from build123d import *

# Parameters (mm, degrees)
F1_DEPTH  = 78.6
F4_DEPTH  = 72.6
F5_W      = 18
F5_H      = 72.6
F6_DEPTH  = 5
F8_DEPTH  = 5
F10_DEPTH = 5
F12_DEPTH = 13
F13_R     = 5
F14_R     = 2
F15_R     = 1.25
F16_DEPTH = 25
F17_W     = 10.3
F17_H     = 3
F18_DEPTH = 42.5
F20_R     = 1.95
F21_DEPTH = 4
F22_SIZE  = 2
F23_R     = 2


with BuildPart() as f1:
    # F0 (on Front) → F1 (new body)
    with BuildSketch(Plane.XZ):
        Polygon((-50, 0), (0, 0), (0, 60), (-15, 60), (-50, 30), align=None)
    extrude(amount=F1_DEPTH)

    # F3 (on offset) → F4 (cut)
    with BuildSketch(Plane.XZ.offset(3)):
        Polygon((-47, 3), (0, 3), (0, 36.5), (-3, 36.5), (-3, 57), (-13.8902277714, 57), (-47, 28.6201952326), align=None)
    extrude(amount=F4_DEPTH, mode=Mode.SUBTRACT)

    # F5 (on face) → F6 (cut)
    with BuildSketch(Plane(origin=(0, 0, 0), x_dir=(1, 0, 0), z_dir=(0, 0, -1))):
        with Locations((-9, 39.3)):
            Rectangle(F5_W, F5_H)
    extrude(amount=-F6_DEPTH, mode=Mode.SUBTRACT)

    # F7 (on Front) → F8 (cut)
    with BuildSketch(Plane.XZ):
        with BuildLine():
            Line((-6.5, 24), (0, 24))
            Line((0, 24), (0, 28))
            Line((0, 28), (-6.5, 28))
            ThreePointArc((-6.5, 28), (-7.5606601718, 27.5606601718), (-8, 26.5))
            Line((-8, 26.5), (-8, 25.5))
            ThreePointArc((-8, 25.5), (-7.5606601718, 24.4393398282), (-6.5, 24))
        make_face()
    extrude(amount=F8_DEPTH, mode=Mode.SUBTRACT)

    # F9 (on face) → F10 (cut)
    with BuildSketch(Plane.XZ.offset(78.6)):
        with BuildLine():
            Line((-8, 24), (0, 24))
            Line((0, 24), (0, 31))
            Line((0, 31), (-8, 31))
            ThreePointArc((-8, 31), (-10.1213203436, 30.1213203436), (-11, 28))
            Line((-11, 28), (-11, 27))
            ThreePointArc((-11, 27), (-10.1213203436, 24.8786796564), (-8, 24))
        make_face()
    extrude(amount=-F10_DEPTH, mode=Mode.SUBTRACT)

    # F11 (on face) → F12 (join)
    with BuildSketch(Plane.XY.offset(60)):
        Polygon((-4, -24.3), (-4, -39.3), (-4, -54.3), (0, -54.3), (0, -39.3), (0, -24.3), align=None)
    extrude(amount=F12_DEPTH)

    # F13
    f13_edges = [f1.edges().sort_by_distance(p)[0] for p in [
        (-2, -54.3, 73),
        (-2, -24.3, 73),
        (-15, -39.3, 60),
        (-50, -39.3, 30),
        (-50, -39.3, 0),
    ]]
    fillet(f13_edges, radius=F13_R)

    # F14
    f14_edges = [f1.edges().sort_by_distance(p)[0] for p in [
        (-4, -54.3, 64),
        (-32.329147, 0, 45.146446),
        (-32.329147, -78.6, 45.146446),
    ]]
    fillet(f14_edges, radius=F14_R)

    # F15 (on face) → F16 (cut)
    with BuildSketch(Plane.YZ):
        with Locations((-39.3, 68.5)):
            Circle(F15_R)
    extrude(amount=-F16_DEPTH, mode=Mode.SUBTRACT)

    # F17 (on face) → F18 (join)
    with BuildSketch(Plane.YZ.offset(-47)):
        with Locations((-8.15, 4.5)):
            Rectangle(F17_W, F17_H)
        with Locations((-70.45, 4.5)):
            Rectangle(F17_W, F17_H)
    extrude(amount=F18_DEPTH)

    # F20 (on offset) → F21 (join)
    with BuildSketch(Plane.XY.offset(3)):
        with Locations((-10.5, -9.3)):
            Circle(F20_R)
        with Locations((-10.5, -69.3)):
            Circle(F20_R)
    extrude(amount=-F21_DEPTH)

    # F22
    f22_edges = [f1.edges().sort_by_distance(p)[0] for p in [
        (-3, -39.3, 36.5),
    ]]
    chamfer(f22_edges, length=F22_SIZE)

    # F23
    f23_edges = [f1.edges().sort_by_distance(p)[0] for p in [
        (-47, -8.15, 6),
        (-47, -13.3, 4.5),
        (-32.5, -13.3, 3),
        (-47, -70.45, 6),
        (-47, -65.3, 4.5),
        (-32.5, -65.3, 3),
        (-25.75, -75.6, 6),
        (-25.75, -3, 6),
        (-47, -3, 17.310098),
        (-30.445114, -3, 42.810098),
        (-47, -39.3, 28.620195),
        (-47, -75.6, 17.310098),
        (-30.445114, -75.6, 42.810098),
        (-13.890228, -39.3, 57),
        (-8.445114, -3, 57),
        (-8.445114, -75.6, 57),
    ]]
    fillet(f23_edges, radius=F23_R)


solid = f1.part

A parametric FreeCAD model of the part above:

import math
import FreeCAD as App
import Part
import Sketcher
Q = App.Units.Quantity


def edges_at(feature, points):
    """Names of the edges that pass closest to the given points."""
    edges = feature.Shape.Edges
    near = lambda p: min(range(len(edges)), key=lambda i: edges[i].distToShape(Part.Vertex(*p))[0])
    return sorted({f"Edge{near(p) + 1}" for p in points})

doc = App.newDocument("Part")
body = doc.addObject("PartDesign::Body", "Body")

# Sketch on XZ plane
sketch1 = body.newObject("Sketcher::SketchObject", "Sketch")
sketch1.AttachmentSupport = (doc.getObject("XZ_Plane"), [""])
sketch1.MapMode = "FlatFace"
sketch1.addGeometry([
    Part.LineSegment(App.Vector(-50, 0, 0), App.Vector(0, 0, 0)),  # 0
    Part.LineSegment(App.Vector(0, 0, 0), App.Vector(0, 60, 0)),  # 1
    Part.LineSegment(App.Vector(0, 60, 0), App.Vector(-15, 60, 0)),  # 2
    Part.LineSegment(App.Vector(-15, 60, 0), App.Vector(-50, 30, 0)),  # 3
    Part.LineSegment(App.Vector(-50, 30, 0), App.Vector(-50, 0, 0)),  # 4
], False)
sketch1.addConstraint([
    Sketcher.Constraint("Coincident", 0, 2, 1, 1),
    Sketcher.Constraint("Coincident", 1, 2, 2, 1),
    Sketcher.Constraint("Coincident", 2, 2, 3, 1),
    Sketcher.Constraint("Coincident", 3, 2, 4, 1),
    Sketcher.Constraint("Coincident", 4, 2, 0, 1),
    Sketcher.Constraint("Horizontal", 0),
    Sketcher.Constraint("Vertical", 1),
    Sketcher.Constraint("Horizontal", 2),
    Sketcher.Constraint("Vertical", 4),
    Sketcher.Constraint("Coincident", 0, 2, -1, 1),
    Sketcher.Constraint("DistanceX", 0, 1, 0, 2, Q("50 mm")),
    Sketcher.Constraint("DistanceX", 2, 2, 2, 1, Q("15 mm")),
    Sketcher.Constraint("DistanceY", 1, 1, 1, 2, Q("60 mm")),
    Sketcher.Constraint("DistanceY", 4, 2, 4, 1, Q("30 mm")),
])
pad1 = body.newObject("PartDesign::Pad", "Pad")
pad1.Profile = sketch1
pad1.Length = 78.6

# Sketch on XZ plane
sketch2 = body.newObject("Sketcher::SketchObject", "Sketch001")
sketch2.AttachmentSupport = (doc.getObject("XZ_Plane"), [""])
sketch2.MapMode = "FlatFace"
sketch2.AttachmentOffset = App.Placement(App.Vector(0, 0, 3), App.Rotation())
sketch2.addGeometry([
    Part.LineSegment(App.Vector(-47, 3, 0), App.Vector(0, 3, 0)),  # 0
    Part.LineSegment(App.Vector(0, 3, 0), App.Vector(0, 36.5, 0)),  # 1
    Part.LineSegment(App.Vector(0, 36.5, 0), App.Vector(-3, 36.5, 0)),  # 2
    Part.LineSegment(App.Vector(-3, 36.5, 0), App.Vector(-3, 57, 0)),  # 3
    Part.LineSegment(App.Vector(-3, 57, 0), App.Vector(-13.890228, 57, 0)),  # 4
    Part.LineSegment(App.Vector(-13.890228, 57, 0), App.Vector(-47, 28.620195, 0)),  # 5
    Part.LineSegment(App.Vector(-47, 28.620195, 0), App.Vector(-47, 3, 0)),  # 6
], False)
sketch2.addConstraint([
    Sketcher.Constraint("Coincident", 0, 2, 1, 1),
    Sketcher.Constraint("Coincident", 1, 2, 2, 1),
    Sketcher.Constraint("Coincident", 2, 2, 3, 1),
    Sketcher.Constraint("Coincident", 3, 2, 4, 1),
    Sketcher.Constraint("Coincident", 4, 2, 5, 1),
    Sketcher.Constraint("Coincident", 5, 2, 6, 1),
    Sketcher.Constraint("Coincident", 6, 2, 0, 1),
    Sketcher.Constraint("Horizontal", 0),
    Sketcher.Constraint("Vertical", 1),
    Sketcher.Constraint("Horizontal", 2),
    Sketcher.Constraint("Vertical", 3),
    Sketcher.Constraint("Horizontal", 4),
    Sketcher.Constraint("Vertical", 6),
    Sketcher.Constraint("PointOnObject", 0, 2, -2),
    Sketcher.Constraint("DistanceX", 0, 1, 0, 2, Q("47 mm")),
    Sketcher.Constraint("DistanceX", 2, 2, 2, 1, Q("3 mm")),
    Sketcher.Constraint("DistanceY", 1, 1, 1, 2, Q("33.5 mm")),
    Sketcher.Constraint("DistanceY", 3, 1, 3, 2, Q("20.5 mm")),
    Sketcher.Constraint("DistanceY", -1, 1, 0, 2, Q("3 mm")),
    Sketcher.Constraint("DistanceX", 4, 2, 4, 1, Q("10.890228 mm")),
    Sketcher.Constraint("DistanceY", 6, 2, 6, 1, Q("25.620195 mm")),
])
pocket1 = body.newObject("PartDesign::Pocket", "Pocket")
pocket1.Profile = sketch2
pocket1.Length = 72.6
pocket1.Reversed = True

# Sketch on XY plane
sketch3 = body.newObject("Sketcher::SketchObject", "Sketch002")
sketch3.AttachmentSupport = (doc.getObject("XY_Plane"), [""])
sketch3.MapMode = "FlatFace"
sketch3.addGeometry([
    Part.LineSegment(App.Vector(-18, -75.6, 0), App.Vector(-18, -3, 0)),
    Part.LineSegment(App.Vector(-18, -3, 0), App.Vector(0, -3, 0)),
    Part.LineSegment(App.Vector(0, -3, 0), App.Vector(0, -75.6, 0)),
    Part.LineSegment(App.Vector(0, -75.6, 0), App.Vector(-18, -75.6, 0)),
], False)
sketch3.addConstraint([
    Sketcher.Constraint("Coincident", 0, 2, 1, 1),
    Sketcher.Constraint("Coincident", 1, 2, 2, 1),
    Sketcher.Constraint("Coincident", 2, 2, 3, 1),
    Sketcher.Constraint("Coincident", 3, 2, 0, 1),
    Sketcher.Constraint("Vertical", 0),
    Sketcher.Constraint("Horizontal", 1),
    Sketcher.Constraint("Vertical", 2),
    Sketcher.Constraint("Horizontal", 3),
    Sketcher.Constraint("PointOnObject", 1, 2, -2),
    Sketcher.Constraint("DistanceX", 1, 1, 1, 2, Q("18 mm")),
    Sketcher.Constraint("DistanceY", 0, 1, 0, 2, Q("72.6 mm")),
    Sketcher.Constraint("DistanceY", 0, 2, -1, 1, Q("3 mm")),
])
pocket2 = body.newObject("PartDesign::Pocket", "Pocket001")
pocket2.Profile = sketch3
pocket2.Length = 5
pocket2.Reversed = True

# Sketch on XZ plane
sketch4 = body.newObject("Sketcher::SketchObject", "Sketch003")
sketch4.AttachmentSupport = (doc.getObject("XZ_Plane"), [""])
sketch4.MapMode = "FlatFace"
sketch4.addGeometry([
    Part.LineSegment(App.Vector(-6.5, 24, 0), App.Vector(0, 24, 0)),  # 0
    Part.LineSegment(App.Vector(0, 24, 0), App.Vector(0, 28, 0)),  # 1
    Part.LineSegment(App.Vector(0, 28, 0), App.Vector(-6.5, 28, 0)),  # 2
    Part.ArcOfCircle(Part.Circle(App.Vector(-6.5, 26.5, 0), App.Vector(0, 0, 1), 1.5), math.radians(90), math.radians(180)),  # 3
    Part.LineSegment(App.Vector(-8, 26.5, 0), App.Vector(-8, 25.5, 0)),  # 4
    Part.ArcOfCircle(Part.Circle(App.Vector(-6.5, 25.5, 0), App.Vector(0, 0, 1), 1.5), math.radians(180), math.radians(270)),  # 5
], False)
sketch4.addConstraint([
    Sketcher.Constraint("Coincident", 0, 2, 1, 1),
    Sketcher.Constraint("Coincident", 1, 2, 2, 1),
    Sketcher.Constraint("Tangent", 2, 2, 3, 1),
    Sketcher.Constraint("Tangent", 3, 2, 4, 1),
    Sketcher.Constraint("Tangent", 4, 2, 5, 1),
    Sketcher.Constraint("Tangent", 5, 2, 0, 1),
    Sketcher.Constraint("Horizontal", 0),
    Sketcher.Constraint("Vertical", 1),
    Sketcher.Constraint("Horizontal", 2),
    Sketcher.Constraint("Vertical", 4),
    Sketcher.Constraint("Equal", 3, 5),
    Sketcher.Constraint("PointOnObject", 0, 2, -2),
    Sketcher.Constraint("Radius", 3, Q("1.5 mm")),
    Sketcher.Constraint("DistanceY", 1, 1, 1, 2, Q("4 mm")),
    Sketcher.Constraint("DistanceX", 0, 1, 0, 2, Q("6.5 mm")),
    Sketcher.Constraint("DistanceY", -1, 1, 0, 2, Q("24 mm")),
])
pocket3 = body.newObject("PartDesign::Pocket", "Pocket002")
pocket3.Profile = sketch4
pocket3.Length = 5
pocket3.Reversed = True

# Sketch on XZ plane
sketch5 = body.newObject("Sketcher::SketchObject", "Sketch004")
sketch5.AttachmentSupport = (doc.getObject("XZ_Plane"), [""])
sketch5.MapMode = "FlatFace"
sketch5.AttachmentOffset = App.Placement(App.Vector(0, 0, 78.6), App.Rotation())
sketch5.addGeometry([
    Part.LineSegment(App.Vector(-8, 24, 0), App.Vector(0, 24, 0)),  # 0
    Part.LineSegment(App.Vector(0, 24, 0), App.Vector(0, 31, 0)),  # 1
    Part.LineSegment(App.Vector(0, 31, 0), App.Vector(-8, 31, 0)),  # 2
    Part.ArcOfCircle(Part.Circle(App.Vector(-8, 28, 0), App.Vector(0, 0, 1), 3), math.radians(90), math.radians(180)),  # 3
    Part.LineSegment(App.Vector(-11, 28, 0), App.Vector(-11, 27, 0)),  # 4
    Part.ArcOfCircle(Part.Circle(App.Vector(-8, 27, 0), App.Vector(0, 0, 1), 3), math.radians(180), math.radians(270)),  # 5
], False)
sketch5.addConstraint([
    Sketcher.Constraint("Coincident", 0, 2, 1, 1),
    Sketcher.Constraint("Coincident", 1, 2, 2, 1),
    Sketcher.Constraint("Tangent", 2, 2, 3, 1),
    Sketcher.Constraint("Tangent", 3, 2, 4, 1),
    Sketcher.Constraint("Tangent", 4, 2, 5, 1),
    Sketcher.Constraint("Tangent", 5, 2, 0, 1),
    Sketcher.Constraint("Horizontal", 0),
    Sketcher.Constraint("Vertical", 1),
    Sketcher.Constraint("Horizontal", 2),
    Sketcher.Constraint("Vertical", 4),
    Sketcher.Constraint("Equal", 3, 5),
    Sketcher.Constraint("PointOnObject", 0, 2, -2),
    Sketcher.Constraint("Radius", 3, Q("3 mm")),
    Sketcher.Constraint("DistanceX", 0, 1, 0, 2, Q("8 mm")),
    Sketcher.Constraint("DistanceY", 1, 1, 1, 2, Q("7 mm")),
    Sketcher.Constraint("DistanceY", -1, 1, 3, 3, Q("28 mm")),
])
pocket4 = body.newObject("PartDesign::Pocket", "Pocket003")
pocket4.Profile = sketch5
pocket4.Length = 5

# Sketch on XY plane
sketch6 = body.newObject("Sketcher::SketchObject", "Sketch005")
sketch6.AttachmentSupport = (doc.getObject("XY_Plane"), [""])
sketch6.MapMode = "FlatFace"
sketch6.AttachmentOffset = App.Placement(App.Vector(0, 0, 60), App.Rotation())
sketch6.addGeometry([
    Part.LineSegment(App.Vector(-4, -24.3, 0), App.Vector(-4, -54.3, 0)),
    Part.LineSegment(App.Vector(-4, -54.3, 0), App.Vector(0, -54.3, 0)),
    Part.LineSegment(App.Vector(0, -54.3, 0), App.Vector(0, -24.3, 0)),
    Part.LineSegment(App.Vector(0, -24.3, 0), App.Vector(-4, -24.3, 0)),
], False)
sketch6.addConstraint([
    Sketcher.Constraint("Coincident", 0, 2, 1, 1),
    Sketcher.Constraint("Coincident", 1, 2, 2, 1),
    Sketcher.Constraint("Coincident", 2, 2, 3, 1),
    Sketcher.Constraint("Coincident", 3, 2, 0, 1),
    Sketcher.Constraint("Vertical", 0),
    Sketcher.Constraint("Horizontal", 1),
    Sketcher.Constraint("Vertical", 2),
    Sketcher.Constraint("Horizontal", 3),
    Sketcher.Constraint("PointOnObject", 1, 2, -2),
    Sketcher.Constraint("DistanceX", 1, 1, 1, 2, Q("4 mm")),
    Sketcher.Constraint("DistanceY", 0, 2, 0, 1, Q("30 mm")),
    Sketcher.Constraint("DistanceY", 0, 2, -1, 1, Q("54.3 mm")),
])
pad2 = body.newObject("PartDesign::Pad", "Pad001")
pad2.Profile = sketch6
pad2.Length = 13
doc.recompute()

fillet = body.newObject("PartDesign::Fillet", "Fillet")
fillet.Base = (pad2, edges_at(pad2, [
    (-2, -54.3, 73),
    (-2, -24.3, 73),
    (-15, -39.3, 60),
    (-50, -39.3, 30),
    (-50, -39.3, 0),
]))
fillet.Radius = 5
doc.recompute()

fillet2 = body.newObject("PartDesign::Fillet", "Fillet001")
fillet2.Base = (fillet, edges_at(fillet, [(-4, -54.3, 64), (-32.329, 0, 45.146), (-32.329, -78.6, 45.146)]))
fillet2.Radius = 2

# Sketch on YZ plane
sketch7 = body.newObject("Sketcher::SketchObject", "Sketch006")
sketch7.AttachmentSupport = (doc.getObject("YZ_Plane"), [""])
sketch7.MapMode = "FlatFace"
sketch7.addGeometry(Part.Circle(App.Vector(-39.3, 68.5, 0), App.Vector(0, 0, 1), 1.25), False)
sketch7.addConstraint([
    Sketcher.Constraint("Diameter", 0, Q("2.5 mm")),
    Sketcher.Constraint("DistanceX", 0, 3, -1, 1, Q("39.3 mm")),
    Sketcher.Constraint("DistanceY", -1, 1, 0, 3, Q("68.5 mm")),
])
pocket5 = body.newObject("PartDesign::Pocket", "Pocket004")
pocket5.Profile = sketch7
pocket5.Length = 25

# Sketch on YZ plane
sketch8 = body.newObject("Sketcher::SketchObject", "Sketch007")
sketch8.AttachmentSupport = (doc.getObject("YZ_Plane"), [""])
sketch8.MapMode = "FlatFace"
sketch8.AttachmentOffset = App.Placement(App.Vector(0, 0, -47), App.Rotation())
sketch8.addGeometry([
    Part.LineSegment(App.Vector(-13.3, 6, 0), App.Vector(-13.3, 3, 0)),  # 0
    Part.LineSegment(App.Vector(-13.3, 3, 0), App.Vector(-3, 3, 0)),  # 1
    Part.LineSegment(App.Vector(-3, 3, 0), App.Vector(-3, 6, 0)),  # 2
    Part.LineSegment(App.Vector(-3, 6, 0), App.Vector(-13.3, 6, 0)),  # 3
    Part.LineSegment(App.Vector(-75.6, 6, 0), App.Vector(-75.6, 3, 0)),  # 4
    Part.LineSegment(App.Vector(-75.6, 3, 0), App.Vector(-65.3, 3, 0)),  # 5
    Part.LineSegment(App.Vector(-65.3, 3, 0), App.Vector(-65.3, 6, 0)),  # 6
    Part.LineSegment(App.Vector(-65.3, 6, 0), App.Vector(-75.6, 6, 0)),  # 7
], False)
sketch8.addConstraint([
    Sketcher.Constraint("Coincident", 0, 2, 1, 1),
    Sketcher.Constraint("Coincident", 1, 2, 2, 1),
    Sketcher.Constraint("Coincident", 2, 2, 3, 1),
    Sketcher.Constraint("Coincident", 3, 2, 0, 1),
    Sketcher.Constraint("Coincident", 4, 2, 5, 1),
    Sketcher.Constraint("Coincident", 5, 2, 6, 1),
    Sketcher.Constraint("Coincident", 6, 2, 7, 1),
    Sketcher.Constraint("Coincident", 7, 2, 4, 1),
    Sketcher.Constraint("Vertical", 0),
    Sketcher.Constraint("Horizontal", 1),
    Sketcher.Constraint("Vertical", 2),
    Sketcher.Constraint("Horizontal", 3),
    Sketcher.Constraint("Vertical", 4),
    Sketcher.Constraint("Horizontal", 5),
    Sketcher.Constraint("Vertical", 6),
    Sketcher.Constraint("Horizontal", 7),
    Sketcher.Constraint("Horizontal", 1, 2, 4, 2),
    Sketcher.Constraint("Horizontal", 3, 2, 6, 2),
    Sketcher.Constraint("Equal", 3, 5),
    Sketcher.Constraint("DistanceY", 0, 2, 0, 1, Q("3 mm")),
    Sketcher.Constraint("DistanceX", 1, 1, 1, 2, Q("10.3 mm")),
    Sketcher.Constraint("DistanceY", -1, 1, 0, 2, Q("3 mm")),
    Sketcher.Constraint("DistanceX", 1, 2, -1, 1, Q("3 mm")),
    Sketcher.Constraint("DistanceX", 5, 2, 0, 2, Q("52 mm")),
])
pad3 = body.newObject("PartDesign::Pad", "Pad002")
pad3.Profile = sketch8
pad3.Length = 42.5

# Sketch on XY plane
sketch9 = body.newObject("Sketcher::SketchObject", "Sketch008")
sketch9.AttachmentSupport = (doc.getObject("XY_Plane"), [""])
sketch9.MapMode = "FlatFace"
sketch9.AttachmentOffset = App.Placement(App.Vector(0, 0, 3), App.Rotation())
sketch9.addGeometry([
    Part.Circle(App.Vector(-10.5, -9.3, 0), App.Vector(0, 0, 1), 1.95),
    Part.Circle(App.Vector(-10.5, -69.3, 0), App.Vector(0, 0, 1), 1.95),
], False)
sketch9.addConstraint([
    Sketcher.Constraint("Equal", 0, 1),
    Sketcher.Constraint("Vertical", 0, 3, 1, 3),
    Sketcher.Constraint("Diameter", 0, Q("3.9 mm")),
    Sketcher.Constraint("DistanceY", 1, 3, 0, 3, Q("60 mm")),
    Sketcher.Constraint("DistanceX", 0, 3, -1, 1, Q("10.5 mm")),
    Sketcher.Constraint("DistanceY", 0, 3, -1, 1, Q("9.3 mm")),
])
pad4 = body.newObject("PartDesign::Pad", "Pad003")
pad4.Profile = sketch9
pad4.Length = 4
pad4.Reversed = True
doc.recompute()

chamfer = body.newObject("PartDesign::Chamfer", "Chamfer")
chamfer.Base = (pad4, edges_at(pad4, [(-3, -39.3, 36.5)]))
chamfer.Size = 2
doc.recompute()

fillet3 = body.newObject("PartDesign::Fillet", "Fillet002")
fillet3.Base = (chamfer, edges_at(chamfer, [
    (-47, -8.15, 6),
    (-47, -13.3, 4.5),
    (-32.5, -13.3, 3),
    (-47, -70.45, 6),
    (-47, -65.3, 4.5),
    (-32.5, -65.3, 3),
    (-25.75, -75.6, 6),
    (-25.75, -3, 6),
    (-47, -3, 17.31),
    (-30.445, -3, 42.81),
    (-47, -39.3, 28.62),
    (-47, -75.6, 17.31),
    (-30.445, -75.6, 42.81),
    (-13.89, -39.3, 57),
    (-8.445, -3, 57),
    (-8.445, -75.6, 57),
]))
fillet3.Radius = 2

doc.recompute()
